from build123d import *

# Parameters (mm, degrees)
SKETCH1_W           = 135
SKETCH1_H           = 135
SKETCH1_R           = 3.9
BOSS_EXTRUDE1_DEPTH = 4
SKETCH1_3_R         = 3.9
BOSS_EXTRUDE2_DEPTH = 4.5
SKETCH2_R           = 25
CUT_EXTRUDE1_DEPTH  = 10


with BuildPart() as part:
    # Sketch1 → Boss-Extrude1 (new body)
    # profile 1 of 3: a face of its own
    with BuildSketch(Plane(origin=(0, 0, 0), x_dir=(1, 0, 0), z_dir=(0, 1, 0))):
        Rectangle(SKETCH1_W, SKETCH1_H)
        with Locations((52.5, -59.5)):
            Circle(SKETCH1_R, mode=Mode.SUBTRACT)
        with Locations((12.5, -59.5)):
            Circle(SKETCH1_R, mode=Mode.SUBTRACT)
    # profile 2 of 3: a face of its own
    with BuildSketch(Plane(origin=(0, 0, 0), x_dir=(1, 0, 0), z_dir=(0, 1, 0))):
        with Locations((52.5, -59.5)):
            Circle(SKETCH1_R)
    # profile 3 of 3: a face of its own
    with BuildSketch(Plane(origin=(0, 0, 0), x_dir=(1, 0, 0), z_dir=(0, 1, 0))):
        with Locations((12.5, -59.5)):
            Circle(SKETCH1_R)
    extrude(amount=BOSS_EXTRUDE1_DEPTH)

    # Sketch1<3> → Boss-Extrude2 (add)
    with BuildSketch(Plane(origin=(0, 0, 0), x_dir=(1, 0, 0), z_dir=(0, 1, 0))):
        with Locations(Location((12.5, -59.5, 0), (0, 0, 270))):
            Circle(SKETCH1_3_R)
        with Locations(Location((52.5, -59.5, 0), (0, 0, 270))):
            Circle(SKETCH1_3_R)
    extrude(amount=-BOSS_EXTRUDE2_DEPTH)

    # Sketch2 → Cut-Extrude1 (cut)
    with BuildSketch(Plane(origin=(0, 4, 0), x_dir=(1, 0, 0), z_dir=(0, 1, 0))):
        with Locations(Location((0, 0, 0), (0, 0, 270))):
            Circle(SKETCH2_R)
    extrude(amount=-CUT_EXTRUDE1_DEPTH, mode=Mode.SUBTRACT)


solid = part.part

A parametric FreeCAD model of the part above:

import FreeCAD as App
import Part
import Sketcher
from FreeCAD import Vector
Q = App.Units.Quantity


def add_polygon(sketch, points):
    """Adds a closed chain of lines whose ends are joined by coincident constraints."""
    first, n = sketch.GeometryCount, len(points)
    for a, b in zip(points, points[1:] + points[:1]):
        sketch.addGeometry(Part.LineSegment(App.Vector(*a, 0), App.Vector(*b, 0)), False)
    for i in range(n):
        sketch.addConstraint(Sketcher.Constraint("Coincident", first + i, 2, first + (i + 1) % n, 1))

doc = App.newDocument("Part")
body = doc.addObject("PartDesign::Body", "Body")

# Sketch on XZ plane
sketch1 = body.newObject("Sketcher::SketchObject", "Sketch")
sketch1.AttachmentSupport = (doc.getObject("XZ_Plane"), [""])
sketch1.MapMode = "FlatFace"
add_polygon(sketch1, [(-68, -68), (-68, 68), (68, 68), (68, -68)])  # lines 0-3
sketch1.addConstraint([
    Sketcher.Constraint("Vertical", 0),
    Sketcher.Constraint("Horizontal", 1),
    Sketcher.Constraint("Vertical", 2),
    Sketcher.Constraint("Horizontal", 3),
    Sketcher.Constraint("Symmetric", 0, 2, 2, 2, -1, 1),
    Sketcher.Constraint("Equal", 3, 0),
    Sketcher.Constraint("DistanceX", 1, 1, 1, 2, Q("135 mm")),
])
pad1 = body.newObject("PartDesign::Pad", "Pad")
pad1.Profile = sketch1
pad1.Length = 4
pad1.Reversed = True

# Sketch on XZ plane
sketch2 = body.newObject("Sketcher::SketchObject", "Sketch001")
sketch2.AttachmentSupport = (doc.getObject("XZ_Plane"), [""])
sketch2.MapMode = "FlatFace"
sketch2.addGeometry([
    Part.Circle(Vector(12.5, 59.5, 0), Vector(0, 0, 1), 3.9),
    Part.Circle(Vector(52.5, 59.5, 0), Vector(0, 0, 1), 3.9),
], False)
sketch2.addConstraint([
    Sketcher.Constraint("Equal", 0, 1),
    Sketcher.Constraint("Horizontal", 0, 3, 1, 3),
    Sketcher.Constraint("Diameter", 0, Q("7.8 mm")),
    Sketcher.Constraint("DistanceX", 0, 3, 1, 3, Q("40 mm")),
    Sketcher.Constraint("DistanceX", -1, 1, 0, 3, Q("12.5 mm")),
    Sketcher.Constraint("DistanceY", -1, 1, 0, 3, Q("59.5 mm")),
])
pad2 = body.newObject("PartDesign::Pad", "Pad001")
pad2.Profile = sketch2
pad2.Length = 4.5

# Sketch on XZ plane
sketch3 = body.newObject("Sketcher::SketchObject", "Sketch002")
sketch3.AttachmentSupport = (doc.getObject("XZ_Plane"), [""])
sketch3.MapMode = "FlatFace"
sketch3.AttachmentOffset = App.Placement(Vector(0, 0, -4), App.Rotation())
sketch3.addGeometry(Part.Circle(Vector(0, 0, 0), Vector(0, 0, 1), 25), False)
sketch3.addConstraint([
    Sketcher.Constraint("Coincident", 0, 3, -1, 1),
    Sketcher.Constraint("Diameter", 0, Q("50 mm")),
])
pocket1 = body.newObject("PartDesign::Pocket", "Pocket")
pocket1.Profile = sketch3
pocket1.Length = 10
pocket1.Reversed = True

doc.recompute()
